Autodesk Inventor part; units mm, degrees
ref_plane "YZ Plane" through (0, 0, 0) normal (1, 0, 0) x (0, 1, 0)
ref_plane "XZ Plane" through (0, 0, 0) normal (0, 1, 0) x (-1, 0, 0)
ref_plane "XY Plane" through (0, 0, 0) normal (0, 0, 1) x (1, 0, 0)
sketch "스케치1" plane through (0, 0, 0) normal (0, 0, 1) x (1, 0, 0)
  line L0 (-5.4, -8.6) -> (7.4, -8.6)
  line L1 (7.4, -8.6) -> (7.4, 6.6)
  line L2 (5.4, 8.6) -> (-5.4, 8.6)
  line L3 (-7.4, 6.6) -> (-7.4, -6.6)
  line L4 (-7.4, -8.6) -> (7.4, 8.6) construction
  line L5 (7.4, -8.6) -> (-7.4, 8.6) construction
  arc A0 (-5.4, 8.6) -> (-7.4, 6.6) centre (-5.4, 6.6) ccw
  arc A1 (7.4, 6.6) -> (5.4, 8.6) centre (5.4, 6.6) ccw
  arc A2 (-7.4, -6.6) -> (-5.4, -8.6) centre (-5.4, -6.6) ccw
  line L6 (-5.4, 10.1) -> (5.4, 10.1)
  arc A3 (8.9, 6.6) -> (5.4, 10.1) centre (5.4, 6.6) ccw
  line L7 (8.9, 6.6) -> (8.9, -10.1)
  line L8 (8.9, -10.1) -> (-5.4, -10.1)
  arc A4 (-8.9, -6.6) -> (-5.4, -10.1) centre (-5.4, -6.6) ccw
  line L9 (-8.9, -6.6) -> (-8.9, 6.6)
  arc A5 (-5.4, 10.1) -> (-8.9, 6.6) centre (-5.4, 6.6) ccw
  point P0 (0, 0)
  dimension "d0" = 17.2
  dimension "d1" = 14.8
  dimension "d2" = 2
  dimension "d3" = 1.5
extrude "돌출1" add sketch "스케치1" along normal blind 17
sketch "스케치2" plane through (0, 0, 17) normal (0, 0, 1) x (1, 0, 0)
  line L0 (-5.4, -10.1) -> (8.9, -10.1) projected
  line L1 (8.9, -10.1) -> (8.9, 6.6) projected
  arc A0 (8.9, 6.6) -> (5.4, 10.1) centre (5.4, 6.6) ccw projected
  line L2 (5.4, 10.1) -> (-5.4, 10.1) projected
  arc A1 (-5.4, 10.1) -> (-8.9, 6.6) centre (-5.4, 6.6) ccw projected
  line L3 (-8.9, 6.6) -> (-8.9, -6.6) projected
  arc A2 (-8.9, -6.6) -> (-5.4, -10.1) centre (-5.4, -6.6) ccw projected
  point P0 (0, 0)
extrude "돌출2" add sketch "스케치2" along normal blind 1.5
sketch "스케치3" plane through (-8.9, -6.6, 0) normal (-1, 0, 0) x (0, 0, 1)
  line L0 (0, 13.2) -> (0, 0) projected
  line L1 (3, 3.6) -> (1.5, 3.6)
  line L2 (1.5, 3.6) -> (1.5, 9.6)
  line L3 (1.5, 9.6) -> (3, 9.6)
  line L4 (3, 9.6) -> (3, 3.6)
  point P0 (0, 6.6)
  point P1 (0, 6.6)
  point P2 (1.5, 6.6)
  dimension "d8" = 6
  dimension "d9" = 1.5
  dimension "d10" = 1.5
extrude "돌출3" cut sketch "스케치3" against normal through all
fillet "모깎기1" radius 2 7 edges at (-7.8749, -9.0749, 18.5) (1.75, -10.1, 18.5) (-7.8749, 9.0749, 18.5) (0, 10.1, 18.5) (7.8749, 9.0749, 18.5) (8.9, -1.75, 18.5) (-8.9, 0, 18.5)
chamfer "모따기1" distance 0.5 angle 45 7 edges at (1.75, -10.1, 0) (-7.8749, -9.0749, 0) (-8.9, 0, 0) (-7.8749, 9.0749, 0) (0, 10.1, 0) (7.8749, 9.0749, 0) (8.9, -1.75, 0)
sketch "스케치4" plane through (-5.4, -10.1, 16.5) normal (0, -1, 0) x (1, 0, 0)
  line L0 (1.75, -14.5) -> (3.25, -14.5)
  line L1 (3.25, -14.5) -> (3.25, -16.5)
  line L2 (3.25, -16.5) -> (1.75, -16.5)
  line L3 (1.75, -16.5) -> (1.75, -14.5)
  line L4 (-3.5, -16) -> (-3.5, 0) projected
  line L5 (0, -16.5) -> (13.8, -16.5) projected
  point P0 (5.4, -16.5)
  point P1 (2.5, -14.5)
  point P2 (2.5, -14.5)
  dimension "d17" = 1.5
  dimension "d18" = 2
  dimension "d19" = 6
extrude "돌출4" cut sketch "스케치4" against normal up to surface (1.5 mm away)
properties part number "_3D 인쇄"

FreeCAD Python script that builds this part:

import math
import FreeCAD as App
import Part
import Sketcher
Q = App.Units.Quantity


def edges_at(feature, points):
    """Names of the edges that pass closest to the given points."""
    edges = feature.Shape.Edges
    near = lambda p: min(range(len(edges)), key=lambda i: edges[i].distToShape(Part.Vertex(*p))[0])
    return sorted({f"Edge{near(p) + 1}" for p in points})


def add_polygon(sketch, points):
    """Adds a closed chain of lines whose ends are joined by coincident constraints."""
    first, n = sketch.GeometryCount, len(points)
    for a, b in zip(points, points[1:] + points[:1]):
        sketch.addGeometry(Part.LineSegment(App.Vector(*a, 0), App.Vector(*b, 0)), False)
    for i in range(n):
        sketch.addConstraint(Sketcher.Constraint("Coincident", first + i, 2, first + (i + 1) % n, 1))

doc = App.newDocument("Part")
body = doc.addObject("PartDesign::Body", "Body")

sketch1 = body.newObject("Sketcher::SketchObject", "Sketch")
sketch1.AttachmentSupport = (doc.getObject("XY_Plane"), [""])
sketch1.MapMode = "FlatFace"
sketch1.addGeometry(Part.LineSegment(App.Vector(5.4, 10.1, 0), App.Vector(-5.4, 10.1, 0)), False)
sketch1.addGeometry(Part.ArcOfCircle(Part.Circle(App.Vector(-5.4, 6.6, 0), App.Vector(0, 0, 1), 3.5), math.radians(90), math.radians(180)), False)
sketch1.addGeometry(Part.LineSegment(App.Vector(-8.9, 6.6, 0), App.Vector(-8.9, -6.6, 0)), False)
sketch1.addGeometry(Part.ArcOfCircle(Part.Circle(App.Vector(-5.4, -6.6, 0), App.Vector(0, 0, 1), 3.5), math.radians(180), math.radians(270)), False)
sketch1.addGeometry(Part.LineSegment(App.Vector(-5.4, -10.1, 0), App.Vector(8.9, -10.1, 0)), False)
sketch1.addGeometry(Part.LineSegment(App.Vector(8.9, -10.1, 0), App.Vector(8.9, 6.6, 0)), False)
sketch1.addGeometry(Part.ArcOfCircle(Part.Circle(App.Vector(5.4, 6.6, 0), App.Vector(0, 0, 1), 3.5), math.radians(0), math.radians(90)), False)
sketch1.addGeometry(Part.LineSegment(App.Vector(7.4, -8.6, 0), App.Vector(-5.4, -8.6, 0)), False)
sketch1.addGeometry(Part.ArcOfCircle(Part.Circle(App.Vector(-5.4, -6.6, 0), App.Vector(0, 0, 1), 2), math.radians(180), math.radians(270)), False)
sketch1.addGeometry(Part.LineSegment(App.Vector(-7.4, -6.6, 0), App.Vector(-7.4, 6.6, 0)), False)
sketch1.addGeometry(Part.ArcOfCircle(Part.Circle(App.Vector(-5.4, 6.6, 0), App.Vector(0, 0, 1), 2), math.radians(90), math.radians(180)), False)
sketch1.addGeometry(Part.LineSegment(App.Vector(-5.4, 8.6, 0), App.Vector(5.4, 8.6, 0)), False)
sketch1.addGeometry(Part.ArcOfCircle(Part.Circle(App.Vector(5.4, 6.6, 0), App.Vector(0, 0, 1), 2), math.radians(0), math.radians(90)), False)
sketch1.addGeometry(Part.LineSegment(App.Vector(7.4, 6.6, 0), App.Vector(7.4, -8.6, 0)), False)
sketch1.addConstraint(Sketcher.Constraint("Tangent", 0, 2, 1, 1))
sketch1.addConstraint(Sketcher.Constraint("Tangent", 1, 2, 2, 1))
sketch1.addConstraint(Sketcher.Constraint("Tangent", 2, 2, 3, 1))
sketch1.addConstraint(Sketcher.Constraint("Tangent", 3, 2, 4, 1))
sketch1.addConstraint(Sketcher.Constraint("Coincident", 4, 2, 5, 1))
sketch1.addConstraint(Sketcher.Constraint("Tangent", 5, 2, 6, 1))
sketch1.addConstraint(Sketcher.Constraint("Tangent", 6, 2, 0, 1))
sketch1.addConstraint(Sketcher.Constraint("Tangent", 7, 2, 8, 2))
sketch1.addConstraint(Sketcher.Constraint("Tangent", 8, 1, 9, 1))
sketch1.addConstraint(Sketcher.Constraint("Tangent", 9, 2, 10, 2))
sketch1.addConstraint(Sketcher.Constraint("Tangent", 10, 1, 11, 1))
sketch1.addConstraint(Sketcher.Constraint("Tangent", 11, 2, 12, 2))
sketch1.addConstraint(Sketcher.Constraint("Tangent", 12, 1, 13, 1))
sketch1.addConstraint(Sketcher.Constraint("Coincident", 13, 2, 7, 1))
sketch1.addConstraint(Sketcher.Constraint("Horizontal", 0))
sketch1.addConstraint(Sketcher.Constraint("Vertical", 2))
sketch1.addConstraint(Sketcher.Constraint("Horizontal", 4))
sketch1.addConstraint(Sketcher.Constraint("Vertical", 5))
sketch1.addConstraint(Sketcher.Constraint("Horizontal", 7))
sketch1.addConstraint(Sketcher.Constraint("Vertical", 9))
sketch1.addConstraint(Sketcher.Constraint("Horizontal", 11))
sketch1.addConstraint(Sketcher.Constraint("Vertical", 13))
sketch1.addConstraint(Sketcher.Constraint("Coincident", 8, 3, 3, 3))
sketch1.addConstraint(Sketcher.Constraint("Coincident", 10, 3, 1, 3))
sketch1.addConstraint(Sketcher.Constraint("Coincident", 12, 3, 6, 3))
sketch1.addConstraint(Sketcher.Constraint("Equal", 1, 3))
sketch1.addConstraint(Sketcher.Constraint("Equal", 3, 6))
sketch1.addConstraint(Sketcher.Constraint("Symmetric", 3, 3, 6, 3, -1, 1))
sketch1.addConstraint(Sketcher.Constraint("Radius", 8, Q("2 mm")))
sketch1.addConstraint(Sketcher.Constraint("Radius", 1, Q("3.5 mm")))
sketch1.addConstraint(Sketcher.Constraint("DistanceX", 0, 2, 0, 1, Q("10.8 mm")))
sketch1.addConstraint(Sketcher.Constraint("DistanceY", 2, 2, 2, 1, Q("13.2 mm")))
pad1 = body.newObject("PartDesign::Pad", "Pad")
pad1.Profile = sketch1
pad1.Length = 17

sketch2 = body.newObject("Sketcher::SketchObject", "Sketch001")
sketch2.AttachmentSupport = (doc.getObject("XY_Plane"), [""])
sketch2.MapMode = "FlatFace"
sketch2.AttachmentOffset = App.Placement(App.Vector(0, 0, 17), App.Rotation())
sketch2.addGeometry(Part.ArcOfCircle(Part.Circle(App.Vector(-5.4, -6.6, 0), App.Vector(0, 0, 1), 3.5), math.radians(180), math.radians(270)), False)
sketch2.addGeometry(Part.LineSegment(App.Vector(-5.4, -10.1, 0), App.Vector(8.9, -10.1, 0)), False)
sketch2.addGeometry(Part.LineSegment(App.Vector(8.9, -10.1, 0), App.Vector(8.9, 6.6, 0)), False)
sketch2.addGeometry(Part.ArcOfCircle(Part.Circle(App.Vector(5.4, 6.6, 0), App.Vector(0, 0, 1), 3.5), math.radians(0), math.radians(90)), False)
sketch2.addGeometry(Part.LineSegment(App.Vector(5.4, 10.1, 0), App.Vector(-5.4, 10.1, 0)), False)
sketch2.addGeometry(Part.ArcOfCircle(Part.Circle(App.Vector(-5.4, 6.6, 0), App.Vector(0, 0, 1), 3.5), math.radians(90), math.radians(180)), False)
sketch2.addGeometry(Part.LineSegment(App.Vector(-8.9, 6.6, 0), App.Vector(-8.9, -6.6, 0)), False)
sketch2.addConstraint(Sketcher.Constraint("Tangent", 0, 2, 1, 1))
sketch2.addConstraint(Sketcher.Constraint("Coincident", 1, 2, 2, 1))
sketch2.addConstraint(Sketcher.Constraint("Tangent", 2, 2, 3, 1))
sketch2.addConstraint(Sketcher.Constraint("Tangent", 3, 2, 4, 1))
sketch2.addConstraint(Sketcher.Constraint("Tangent", 4, 2, 5, 1))
sketch2.addConstraint(Sketcher.Constraint("Tangent", 5, 2, 6, 1))
sketch2.addConstraint(Sketcher.Constraint("Tangent", 6, 2, 0, 1))
sketch2.addConstraint(Sketcher.Constraint("Horizontal", 1))
sketch2.addConstraint(Sketcher.Constraint("Vertical", 2))
sketch2.addConstraint(Sketcher.Constraint("Horizontal", 4))
sketch2.addConstraint(Sketcher.Constraint("Vertical", 6))
sketch2.addConstraint(Sketcher.Constraint("Equal", 0, 3))
sketch2.addConstraint(Sketcher.Constraint("Equal", 3, 5))
sketch2.addConstraint(Sketcher.Constraint("Symmetric", 0, 3, 3, 3, -1, 1))
sketch2.addConstraint(Sketcher.Constraint("Radius", 0, Q("3.5 mm")))
sketch2.addConstraint(Sketcher.Constraint("DistanceX", 1, 1, 1, 2, Q("14.3 mm")))
sketch2.addConstraint(Sketcher.Constraint("DistanceY", 2, 1, 2, 2, Q("16.7 mm")))
pad2 = body.newObject("PartDesign::Pad", "Pad001")
pad2.Profile = sketch2
pad2.Length = 1.5

sketch3 = body.newObject("Sketcher::SketchObject", "Sketch002")
sketch3.AttachmentSupport = (doc.getObject("YZ_Plane"), [""])
sketch3.MapMode = "FlatFace"
sketch3.AttachmentOffset = App.Placement(App.Vector(0, 0, -8.9), App.Rotation())
add_polygon(sketch3, [(-3, 1.5), (-3, 3), (3, 3), (3, 1.5)])
sketch3.addConstraint(Sketcher.Constraint("Vertical", 0))
sketch3.addConstraint(Sketcher.Constraint("Horizontal", 1))
sketch3.addConstraint(Sketcher.Constraint("Vertical", 2))
sketch3.addConstraint(Sketcher.Constraint("Horizontal", 3))
sketch3.addConstraint(Sketcher.Constraint("DistanceX", 1, 1, 1, 2, Q("6 mm")))
sketch3.addConstraint(Sketcher.Constraint("DistanceY", 0, 1, 0, 2, Q("1.5 mm")))
sketch3.addConstraint(Sketcher.Constraint("DistanceY", -1, 1, 2, 2, Q("1.5 mm")))
sketch3.addConstraint(Sketcher.Constraint("DistanceX", 0, 2, -1, 1, Q("3 mm")))
pocket1 = body.newObject("PartDesign::Pocket", "Pocket")
pocket1.Profile = sketch3
pocket1.Type = "ThroughAll"
pocket1.Reversed = True
doc.recompute()

fillet = body.newObject("PartDesign::Fillet", "Fillet")
fillet.Base = (pocket1, edges_at(pocket1, [
    (-7.875, -9.075, 18.5),
    (1.75, -10.1, 18.5),
    (-7.875, 9.075, 18.5),
    (0, 10.1, 18.5),
    (7.875, 9.075, 18.5),
    (8.9, -1.75, 18.5),
    (-8.9, 0, 18.5),
]))
fillet.Radius = 2
doc.recompute()

chamfer = body.newObject("PartDesign::Chamfer", "Chamfer")
chamfer.Base = (fillet, edges_at(fillet, [
    (1.75, -10.1, 0),
    (-7.875, -9.075, 0),
    (-8.9, 0, 0),
    (-7.875, 9.075, 0),
    (0, 10.1, 0),
    (7.875, 9.075, 0),
    (8.9, -1.75, 0),
]))
chamfer.Size = 0.5

sketch4 = body.newObject("Sketcher::SketchObject", "Sketch003")
sketch4.AttachmentSupport = (doc.getObject("XZ_Plane"), [""])
sketch4.MapMode = "FlatFace"
sketch4.AttachmentOffset = App.Placement(App.Vector(0, 0, 10.1), App.Rotation())
add_polygon(sketch4, [(-2.1, 2), (-3.6, 2), (-3.6, 0), (-2.1, 0)])
sketch4.addConstraint(Sketcher.Constraint("Horizontal", 0))
sketch4.addConstraint(Sketcher.Constraint("Vertical", 1))
sketch4.addConstraint(Sketcher.Constraint("Horizontal", 2))
sketch4.addConstraint(Sketcher.Constraint("Vertical", 3))
sketch4.addConstraint(Sketcher.Constraint("PointOnObject", 1, 2, -1))
sketch4.addConstraint(Sketcher.Constraint("DistanceY", 1, 2, 1, 1, Q("2 mm")))
sketch4.addConstraint(Sketcher.Constraint("DistanceX", 0, 2, 0, 1, Q("1.5 mm")))
sketch4.addConstraint(Sketcher.Constraint("DistanceX", 0, 2, -1, 1, Q("3.65 mm")))
pocket2 = body.newObject("PartDesign::Pocket", "Pocket001")
pocket2.Profile = sketch4
pocket2.Length = 1.5

doc.recompute()
